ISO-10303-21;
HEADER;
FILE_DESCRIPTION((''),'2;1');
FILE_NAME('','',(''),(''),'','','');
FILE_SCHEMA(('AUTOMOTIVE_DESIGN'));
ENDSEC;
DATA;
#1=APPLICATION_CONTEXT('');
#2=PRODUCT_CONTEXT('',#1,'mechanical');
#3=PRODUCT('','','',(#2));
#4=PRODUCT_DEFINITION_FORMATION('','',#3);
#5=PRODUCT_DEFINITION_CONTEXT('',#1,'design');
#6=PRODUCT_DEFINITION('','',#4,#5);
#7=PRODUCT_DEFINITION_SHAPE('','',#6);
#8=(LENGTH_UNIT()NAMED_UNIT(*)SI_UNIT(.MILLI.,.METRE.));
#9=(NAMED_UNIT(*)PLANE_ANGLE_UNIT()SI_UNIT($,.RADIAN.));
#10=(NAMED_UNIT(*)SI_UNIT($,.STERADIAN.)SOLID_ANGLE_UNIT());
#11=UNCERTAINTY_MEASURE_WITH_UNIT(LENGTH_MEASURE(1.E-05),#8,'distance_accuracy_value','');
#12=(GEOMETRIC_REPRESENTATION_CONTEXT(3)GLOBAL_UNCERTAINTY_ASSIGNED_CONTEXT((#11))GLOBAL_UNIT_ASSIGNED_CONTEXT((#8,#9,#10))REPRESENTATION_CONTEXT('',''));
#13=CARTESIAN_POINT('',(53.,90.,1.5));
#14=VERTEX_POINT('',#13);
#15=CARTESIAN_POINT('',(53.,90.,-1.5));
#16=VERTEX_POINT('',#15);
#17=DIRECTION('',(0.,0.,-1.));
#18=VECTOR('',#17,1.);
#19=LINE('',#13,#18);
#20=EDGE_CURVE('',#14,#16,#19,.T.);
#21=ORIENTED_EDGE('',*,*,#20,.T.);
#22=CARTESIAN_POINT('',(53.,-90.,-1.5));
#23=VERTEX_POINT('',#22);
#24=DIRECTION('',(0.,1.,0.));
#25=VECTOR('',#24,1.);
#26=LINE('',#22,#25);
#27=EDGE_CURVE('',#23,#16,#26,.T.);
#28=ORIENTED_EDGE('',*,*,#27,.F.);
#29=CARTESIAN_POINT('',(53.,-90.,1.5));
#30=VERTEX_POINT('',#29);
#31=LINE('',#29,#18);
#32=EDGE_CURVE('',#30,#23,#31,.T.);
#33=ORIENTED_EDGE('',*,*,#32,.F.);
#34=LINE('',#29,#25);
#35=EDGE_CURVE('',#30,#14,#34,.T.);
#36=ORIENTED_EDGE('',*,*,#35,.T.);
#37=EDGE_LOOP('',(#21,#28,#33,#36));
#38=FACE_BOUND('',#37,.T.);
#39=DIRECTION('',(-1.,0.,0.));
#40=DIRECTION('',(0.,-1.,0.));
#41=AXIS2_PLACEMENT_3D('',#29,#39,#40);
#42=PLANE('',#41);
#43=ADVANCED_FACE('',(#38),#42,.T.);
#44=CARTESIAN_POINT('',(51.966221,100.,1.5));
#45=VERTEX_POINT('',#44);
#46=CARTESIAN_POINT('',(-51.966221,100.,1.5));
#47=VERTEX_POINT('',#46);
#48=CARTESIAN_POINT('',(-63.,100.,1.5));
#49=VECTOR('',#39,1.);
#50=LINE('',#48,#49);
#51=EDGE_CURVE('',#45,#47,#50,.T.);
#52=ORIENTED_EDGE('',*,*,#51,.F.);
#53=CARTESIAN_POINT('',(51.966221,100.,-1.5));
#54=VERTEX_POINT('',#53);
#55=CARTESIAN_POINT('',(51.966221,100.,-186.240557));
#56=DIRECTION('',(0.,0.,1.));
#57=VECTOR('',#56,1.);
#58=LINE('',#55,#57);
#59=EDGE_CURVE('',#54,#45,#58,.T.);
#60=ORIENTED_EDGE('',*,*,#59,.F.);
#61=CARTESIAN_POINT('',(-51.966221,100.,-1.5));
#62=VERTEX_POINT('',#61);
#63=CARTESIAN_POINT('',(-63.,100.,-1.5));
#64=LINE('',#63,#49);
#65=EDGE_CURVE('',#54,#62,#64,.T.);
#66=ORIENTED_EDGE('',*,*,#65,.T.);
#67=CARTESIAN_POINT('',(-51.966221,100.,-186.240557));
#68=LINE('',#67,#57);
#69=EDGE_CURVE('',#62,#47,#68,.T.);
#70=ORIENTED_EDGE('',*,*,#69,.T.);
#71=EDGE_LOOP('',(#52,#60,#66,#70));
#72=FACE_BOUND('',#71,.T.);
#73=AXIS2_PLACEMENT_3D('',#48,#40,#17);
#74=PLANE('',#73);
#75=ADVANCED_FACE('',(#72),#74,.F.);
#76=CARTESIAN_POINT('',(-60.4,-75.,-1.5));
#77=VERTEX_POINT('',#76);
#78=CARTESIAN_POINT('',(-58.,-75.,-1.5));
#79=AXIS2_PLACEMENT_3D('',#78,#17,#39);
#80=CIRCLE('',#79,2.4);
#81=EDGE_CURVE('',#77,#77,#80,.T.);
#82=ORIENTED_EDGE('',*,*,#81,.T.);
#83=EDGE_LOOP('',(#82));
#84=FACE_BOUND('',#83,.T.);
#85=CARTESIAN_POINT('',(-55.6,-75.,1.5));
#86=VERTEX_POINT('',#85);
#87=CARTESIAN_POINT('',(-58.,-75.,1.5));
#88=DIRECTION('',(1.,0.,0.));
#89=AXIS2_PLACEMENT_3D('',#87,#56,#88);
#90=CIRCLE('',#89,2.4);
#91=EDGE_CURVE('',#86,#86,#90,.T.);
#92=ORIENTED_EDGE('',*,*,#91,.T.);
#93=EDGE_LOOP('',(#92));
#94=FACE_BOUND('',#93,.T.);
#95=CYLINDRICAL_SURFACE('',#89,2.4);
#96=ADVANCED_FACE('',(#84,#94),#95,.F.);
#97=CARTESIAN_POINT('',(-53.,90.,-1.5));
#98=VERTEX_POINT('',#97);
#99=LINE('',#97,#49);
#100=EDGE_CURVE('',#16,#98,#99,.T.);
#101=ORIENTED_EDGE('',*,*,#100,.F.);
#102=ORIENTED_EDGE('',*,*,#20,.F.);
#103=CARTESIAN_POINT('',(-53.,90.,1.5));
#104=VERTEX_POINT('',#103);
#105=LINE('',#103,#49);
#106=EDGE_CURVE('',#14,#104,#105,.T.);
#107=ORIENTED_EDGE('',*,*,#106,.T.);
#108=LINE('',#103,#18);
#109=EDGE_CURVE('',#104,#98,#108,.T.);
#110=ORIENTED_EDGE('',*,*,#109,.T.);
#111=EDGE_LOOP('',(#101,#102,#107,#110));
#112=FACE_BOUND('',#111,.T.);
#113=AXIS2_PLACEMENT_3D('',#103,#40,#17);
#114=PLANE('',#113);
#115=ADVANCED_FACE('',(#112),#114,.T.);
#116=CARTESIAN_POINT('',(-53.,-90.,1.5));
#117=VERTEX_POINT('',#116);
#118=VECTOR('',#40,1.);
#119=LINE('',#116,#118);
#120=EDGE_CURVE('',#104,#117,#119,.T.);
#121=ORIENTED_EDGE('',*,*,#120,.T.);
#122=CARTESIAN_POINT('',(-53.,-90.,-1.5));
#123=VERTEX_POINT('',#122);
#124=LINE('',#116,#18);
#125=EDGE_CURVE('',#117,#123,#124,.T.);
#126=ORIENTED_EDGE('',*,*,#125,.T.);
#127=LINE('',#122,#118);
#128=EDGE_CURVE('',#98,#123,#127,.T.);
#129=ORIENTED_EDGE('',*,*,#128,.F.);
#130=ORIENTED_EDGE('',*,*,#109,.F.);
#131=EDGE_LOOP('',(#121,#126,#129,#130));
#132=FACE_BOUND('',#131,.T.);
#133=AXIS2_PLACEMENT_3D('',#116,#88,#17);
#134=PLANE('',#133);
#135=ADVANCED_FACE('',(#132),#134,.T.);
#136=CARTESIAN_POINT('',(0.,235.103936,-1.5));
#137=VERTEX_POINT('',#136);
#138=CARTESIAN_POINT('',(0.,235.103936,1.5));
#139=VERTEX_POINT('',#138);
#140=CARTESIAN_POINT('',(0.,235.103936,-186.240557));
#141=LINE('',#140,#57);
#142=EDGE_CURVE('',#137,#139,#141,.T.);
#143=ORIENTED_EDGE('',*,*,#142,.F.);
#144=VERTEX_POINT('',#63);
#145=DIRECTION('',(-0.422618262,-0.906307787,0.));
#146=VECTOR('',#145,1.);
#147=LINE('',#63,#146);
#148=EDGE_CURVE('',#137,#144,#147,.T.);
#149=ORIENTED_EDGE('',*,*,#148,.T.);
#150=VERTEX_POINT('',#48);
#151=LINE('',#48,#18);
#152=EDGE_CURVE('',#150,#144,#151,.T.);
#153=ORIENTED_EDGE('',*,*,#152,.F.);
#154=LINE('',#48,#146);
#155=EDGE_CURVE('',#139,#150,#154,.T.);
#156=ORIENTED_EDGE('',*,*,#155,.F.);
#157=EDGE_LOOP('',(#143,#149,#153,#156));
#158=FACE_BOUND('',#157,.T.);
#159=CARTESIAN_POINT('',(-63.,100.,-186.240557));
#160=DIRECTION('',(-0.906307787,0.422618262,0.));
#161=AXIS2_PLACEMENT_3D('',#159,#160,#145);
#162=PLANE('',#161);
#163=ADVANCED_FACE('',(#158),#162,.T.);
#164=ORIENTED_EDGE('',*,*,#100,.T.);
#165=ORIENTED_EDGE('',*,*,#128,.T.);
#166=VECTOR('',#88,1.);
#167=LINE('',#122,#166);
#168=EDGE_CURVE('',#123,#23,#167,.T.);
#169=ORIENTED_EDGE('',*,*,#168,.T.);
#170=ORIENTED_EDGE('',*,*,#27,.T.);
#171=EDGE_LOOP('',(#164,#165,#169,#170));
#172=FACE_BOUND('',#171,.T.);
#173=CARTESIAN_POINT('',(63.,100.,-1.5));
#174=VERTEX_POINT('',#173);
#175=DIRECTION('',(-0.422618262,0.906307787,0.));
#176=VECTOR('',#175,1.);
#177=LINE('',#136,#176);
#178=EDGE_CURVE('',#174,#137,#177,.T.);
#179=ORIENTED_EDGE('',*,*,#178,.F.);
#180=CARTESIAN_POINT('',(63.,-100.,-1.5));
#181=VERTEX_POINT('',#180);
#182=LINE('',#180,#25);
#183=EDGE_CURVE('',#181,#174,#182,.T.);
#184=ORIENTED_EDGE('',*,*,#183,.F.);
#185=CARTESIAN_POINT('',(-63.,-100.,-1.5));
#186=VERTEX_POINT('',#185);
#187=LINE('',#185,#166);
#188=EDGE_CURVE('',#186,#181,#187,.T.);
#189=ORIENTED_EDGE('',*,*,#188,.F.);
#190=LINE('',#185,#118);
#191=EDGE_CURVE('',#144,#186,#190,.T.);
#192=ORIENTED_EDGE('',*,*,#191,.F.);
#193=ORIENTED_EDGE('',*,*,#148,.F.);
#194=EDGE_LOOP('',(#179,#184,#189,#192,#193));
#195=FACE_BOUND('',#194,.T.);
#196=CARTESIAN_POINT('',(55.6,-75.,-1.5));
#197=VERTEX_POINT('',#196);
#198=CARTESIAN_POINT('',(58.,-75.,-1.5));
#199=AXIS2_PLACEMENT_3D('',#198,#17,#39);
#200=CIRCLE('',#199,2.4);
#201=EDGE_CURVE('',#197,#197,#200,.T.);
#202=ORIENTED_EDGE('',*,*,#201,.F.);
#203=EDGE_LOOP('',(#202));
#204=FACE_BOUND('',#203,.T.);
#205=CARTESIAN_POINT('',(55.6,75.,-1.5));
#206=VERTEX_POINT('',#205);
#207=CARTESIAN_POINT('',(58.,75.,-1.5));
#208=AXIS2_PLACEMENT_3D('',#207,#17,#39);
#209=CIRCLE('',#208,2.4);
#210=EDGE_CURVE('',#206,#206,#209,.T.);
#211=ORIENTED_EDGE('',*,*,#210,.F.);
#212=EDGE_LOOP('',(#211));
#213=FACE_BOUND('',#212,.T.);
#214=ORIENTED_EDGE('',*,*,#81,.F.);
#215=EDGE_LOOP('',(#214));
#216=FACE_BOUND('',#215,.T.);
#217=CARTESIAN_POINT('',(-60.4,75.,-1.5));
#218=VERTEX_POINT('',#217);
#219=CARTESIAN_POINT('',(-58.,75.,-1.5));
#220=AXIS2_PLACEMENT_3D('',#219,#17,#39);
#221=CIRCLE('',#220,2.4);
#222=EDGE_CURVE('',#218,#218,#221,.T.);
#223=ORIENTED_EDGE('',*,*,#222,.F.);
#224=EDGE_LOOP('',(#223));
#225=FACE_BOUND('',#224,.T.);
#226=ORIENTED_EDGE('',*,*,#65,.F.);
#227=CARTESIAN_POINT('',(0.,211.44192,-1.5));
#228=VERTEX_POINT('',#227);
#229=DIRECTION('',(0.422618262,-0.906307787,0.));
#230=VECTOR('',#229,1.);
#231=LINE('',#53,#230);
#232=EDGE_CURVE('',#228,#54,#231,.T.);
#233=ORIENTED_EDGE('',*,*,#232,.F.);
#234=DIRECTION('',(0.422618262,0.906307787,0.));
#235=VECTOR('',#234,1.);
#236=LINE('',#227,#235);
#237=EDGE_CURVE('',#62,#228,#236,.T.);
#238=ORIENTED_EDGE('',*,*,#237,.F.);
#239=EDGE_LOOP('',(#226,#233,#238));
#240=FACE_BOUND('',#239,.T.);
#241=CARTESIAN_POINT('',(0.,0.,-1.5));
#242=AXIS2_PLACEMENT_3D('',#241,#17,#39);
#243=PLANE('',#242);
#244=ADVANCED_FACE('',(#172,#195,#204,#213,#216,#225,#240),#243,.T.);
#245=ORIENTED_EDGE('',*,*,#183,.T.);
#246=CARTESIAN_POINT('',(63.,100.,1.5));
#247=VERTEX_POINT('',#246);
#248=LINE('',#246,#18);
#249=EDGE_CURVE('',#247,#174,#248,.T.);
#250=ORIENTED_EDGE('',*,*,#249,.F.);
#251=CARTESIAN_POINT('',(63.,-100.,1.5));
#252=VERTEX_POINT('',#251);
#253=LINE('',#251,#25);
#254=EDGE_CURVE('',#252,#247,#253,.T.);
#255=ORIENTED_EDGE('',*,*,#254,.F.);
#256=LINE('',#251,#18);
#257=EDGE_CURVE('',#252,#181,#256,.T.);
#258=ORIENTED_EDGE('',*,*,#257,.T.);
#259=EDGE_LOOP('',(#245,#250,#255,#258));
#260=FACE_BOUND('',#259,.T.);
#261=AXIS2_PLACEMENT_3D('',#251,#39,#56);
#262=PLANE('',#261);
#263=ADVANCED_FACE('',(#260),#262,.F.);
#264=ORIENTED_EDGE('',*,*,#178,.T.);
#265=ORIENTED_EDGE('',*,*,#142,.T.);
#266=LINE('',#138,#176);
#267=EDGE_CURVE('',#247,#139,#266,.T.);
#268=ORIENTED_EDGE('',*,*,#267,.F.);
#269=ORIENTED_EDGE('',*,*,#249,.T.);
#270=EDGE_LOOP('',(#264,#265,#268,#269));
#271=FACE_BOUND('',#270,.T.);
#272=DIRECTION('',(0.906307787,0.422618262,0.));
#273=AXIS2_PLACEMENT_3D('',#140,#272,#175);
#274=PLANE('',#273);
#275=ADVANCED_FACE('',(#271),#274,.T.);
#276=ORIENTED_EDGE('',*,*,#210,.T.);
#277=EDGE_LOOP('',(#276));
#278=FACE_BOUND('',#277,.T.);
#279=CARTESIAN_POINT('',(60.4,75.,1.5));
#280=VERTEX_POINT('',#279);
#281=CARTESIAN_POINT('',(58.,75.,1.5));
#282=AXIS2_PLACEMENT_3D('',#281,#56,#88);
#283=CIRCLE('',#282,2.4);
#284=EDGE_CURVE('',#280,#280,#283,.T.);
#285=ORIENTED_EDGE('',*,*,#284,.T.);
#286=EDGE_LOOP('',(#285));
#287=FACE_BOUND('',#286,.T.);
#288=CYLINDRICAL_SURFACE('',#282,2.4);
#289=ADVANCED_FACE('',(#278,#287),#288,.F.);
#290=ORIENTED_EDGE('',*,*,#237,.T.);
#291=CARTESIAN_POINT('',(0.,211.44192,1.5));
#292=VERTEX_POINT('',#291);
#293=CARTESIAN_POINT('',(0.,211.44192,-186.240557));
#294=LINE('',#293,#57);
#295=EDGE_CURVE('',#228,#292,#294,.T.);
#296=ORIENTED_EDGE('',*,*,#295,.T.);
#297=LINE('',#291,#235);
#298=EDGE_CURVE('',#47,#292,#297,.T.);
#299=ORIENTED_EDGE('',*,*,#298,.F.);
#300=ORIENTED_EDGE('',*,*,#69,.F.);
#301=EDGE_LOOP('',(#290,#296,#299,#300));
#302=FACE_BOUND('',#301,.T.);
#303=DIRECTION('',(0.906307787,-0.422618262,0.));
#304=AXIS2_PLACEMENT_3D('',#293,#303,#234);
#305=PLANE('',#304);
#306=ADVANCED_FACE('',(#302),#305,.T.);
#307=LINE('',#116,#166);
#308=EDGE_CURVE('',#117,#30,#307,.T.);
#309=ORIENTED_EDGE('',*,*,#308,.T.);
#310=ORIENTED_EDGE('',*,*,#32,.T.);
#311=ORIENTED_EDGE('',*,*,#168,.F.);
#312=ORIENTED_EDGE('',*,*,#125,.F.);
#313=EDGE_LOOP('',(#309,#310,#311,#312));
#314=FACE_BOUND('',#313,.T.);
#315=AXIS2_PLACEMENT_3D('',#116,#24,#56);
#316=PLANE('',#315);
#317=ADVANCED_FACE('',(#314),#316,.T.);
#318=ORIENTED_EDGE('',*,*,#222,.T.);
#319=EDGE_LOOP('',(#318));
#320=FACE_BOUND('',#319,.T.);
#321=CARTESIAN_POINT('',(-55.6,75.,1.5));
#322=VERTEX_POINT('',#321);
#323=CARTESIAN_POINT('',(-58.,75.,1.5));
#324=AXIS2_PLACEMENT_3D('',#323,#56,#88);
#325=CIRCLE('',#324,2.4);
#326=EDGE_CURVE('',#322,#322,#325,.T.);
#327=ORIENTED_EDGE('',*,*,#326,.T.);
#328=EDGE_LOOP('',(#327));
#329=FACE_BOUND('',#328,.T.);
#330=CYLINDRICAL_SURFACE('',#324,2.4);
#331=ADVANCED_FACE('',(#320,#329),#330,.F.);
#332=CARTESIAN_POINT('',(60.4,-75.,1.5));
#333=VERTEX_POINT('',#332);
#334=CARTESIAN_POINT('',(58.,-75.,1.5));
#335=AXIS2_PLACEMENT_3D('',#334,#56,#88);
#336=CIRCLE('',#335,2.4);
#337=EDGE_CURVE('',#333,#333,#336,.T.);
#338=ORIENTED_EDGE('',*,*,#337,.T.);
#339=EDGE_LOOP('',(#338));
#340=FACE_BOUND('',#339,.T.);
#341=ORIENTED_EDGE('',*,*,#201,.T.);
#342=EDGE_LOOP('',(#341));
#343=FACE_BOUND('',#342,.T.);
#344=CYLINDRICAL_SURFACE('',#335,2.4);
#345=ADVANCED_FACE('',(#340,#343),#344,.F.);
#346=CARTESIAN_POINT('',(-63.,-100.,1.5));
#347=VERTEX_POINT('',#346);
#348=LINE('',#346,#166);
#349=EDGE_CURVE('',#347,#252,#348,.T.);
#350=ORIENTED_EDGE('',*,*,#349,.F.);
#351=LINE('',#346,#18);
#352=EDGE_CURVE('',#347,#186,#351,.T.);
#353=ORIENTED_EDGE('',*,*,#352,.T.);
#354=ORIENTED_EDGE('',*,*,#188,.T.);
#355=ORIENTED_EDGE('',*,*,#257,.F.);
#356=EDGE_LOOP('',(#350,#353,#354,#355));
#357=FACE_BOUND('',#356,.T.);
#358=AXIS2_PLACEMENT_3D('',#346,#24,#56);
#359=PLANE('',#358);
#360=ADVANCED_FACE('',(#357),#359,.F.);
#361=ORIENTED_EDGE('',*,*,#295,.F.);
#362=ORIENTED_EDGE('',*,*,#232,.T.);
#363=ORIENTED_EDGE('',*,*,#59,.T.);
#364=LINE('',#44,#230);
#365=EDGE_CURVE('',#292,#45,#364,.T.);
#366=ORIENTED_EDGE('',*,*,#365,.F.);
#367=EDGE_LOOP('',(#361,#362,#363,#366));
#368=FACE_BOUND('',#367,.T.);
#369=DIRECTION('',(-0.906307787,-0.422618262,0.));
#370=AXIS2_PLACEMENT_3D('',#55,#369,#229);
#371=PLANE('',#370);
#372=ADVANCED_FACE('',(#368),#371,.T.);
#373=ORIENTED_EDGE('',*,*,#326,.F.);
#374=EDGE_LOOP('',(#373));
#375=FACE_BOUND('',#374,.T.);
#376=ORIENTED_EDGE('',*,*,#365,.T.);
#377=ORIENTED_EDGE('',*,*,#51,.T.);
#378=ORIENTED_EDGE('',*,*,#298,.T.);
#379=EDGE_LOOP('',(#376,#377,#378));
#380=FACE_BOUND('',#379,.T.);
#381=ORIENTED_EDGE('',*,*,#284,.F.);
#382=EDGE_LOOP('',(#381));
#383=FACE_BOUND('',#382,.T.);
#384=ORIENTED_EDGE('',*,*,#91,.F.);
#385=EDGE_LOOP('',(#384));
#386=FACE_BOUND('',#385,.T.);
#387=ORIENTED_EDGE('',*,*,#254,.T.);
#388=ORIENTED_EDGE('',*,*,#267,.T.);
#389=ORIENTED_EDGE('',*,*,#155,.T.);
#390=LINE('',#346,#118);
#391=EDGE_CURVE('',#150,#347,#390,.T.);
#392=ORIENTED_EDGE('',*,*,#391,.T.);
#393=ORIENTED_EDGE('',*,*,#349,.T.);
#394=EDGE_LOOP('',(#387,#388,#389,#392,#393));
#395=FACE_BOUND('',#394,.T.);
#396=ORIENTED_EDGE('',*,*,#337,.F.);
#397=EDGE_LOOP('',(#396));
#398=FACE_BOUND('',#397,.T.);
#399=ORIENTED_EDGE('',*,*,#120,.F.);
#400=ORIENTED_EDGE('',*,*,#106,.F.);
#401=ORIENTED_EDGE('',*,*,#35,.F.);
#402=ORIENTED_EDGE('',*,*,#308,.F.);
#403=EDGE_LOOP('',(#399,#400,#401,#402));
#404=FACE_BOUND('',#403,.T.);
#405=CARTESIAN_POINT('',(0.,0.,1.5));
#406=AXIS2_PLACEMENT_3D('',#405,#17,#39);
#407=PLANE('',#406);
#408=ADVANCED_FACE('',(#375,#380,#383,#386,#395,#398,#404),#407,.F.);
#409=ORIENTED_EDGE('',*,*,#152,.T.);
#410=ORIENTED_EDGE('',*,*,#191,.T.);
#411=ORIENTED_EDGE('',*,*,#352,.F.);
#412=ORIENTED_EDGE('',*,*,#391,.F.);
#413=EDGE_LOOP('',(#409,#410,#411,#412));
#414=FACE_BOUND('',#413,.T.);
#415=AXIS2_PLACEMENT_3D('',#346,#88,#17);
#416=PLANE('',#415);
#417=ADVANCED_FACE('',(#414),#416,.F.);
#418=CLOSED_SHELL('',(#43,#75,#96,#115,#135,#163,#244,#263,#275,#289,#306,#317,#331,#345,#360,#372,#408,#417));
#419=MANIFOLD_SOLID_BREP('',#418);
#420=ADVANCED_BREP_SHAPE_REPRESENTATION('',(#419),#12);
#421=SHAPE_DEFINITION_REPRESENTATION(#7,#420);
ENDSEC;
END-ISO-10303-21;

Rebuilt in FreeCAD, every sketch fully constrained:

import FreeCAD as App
import Part
import Sketcher
Q = App.Units.Quantity


def add_polygon(sketch, points):
    """Adds a closed chain of lines whose ends are joined by coincident constraints."""
    first, n = sketch.GeometryCount, len(points)
    for a, b in zip(points, points[1:] + points[:1]):
        sketch.addGeometry(Part.LineSegment(App.Vector(*a, 0), App.Vector(*b, 0)), False)
    for i in range(n):
        sketch.addConstraint(Sketcher.Constraint("Coincident", first + i, 2, first + (i + 1) % n, 1))

doc = App.newDocument("Part")
body = doc.addObject("PartDesign::Body", "Body")

# Sketch on XY plane
sketch1 = body.newObject("Sketcher::SketchObject", "Sketch")
sketch1.AttachmentSupport = (doc.getObject("XY_Plane"), [""])
sketch1.MapMode = "FlatFace"
add_polygon(sketch1, [(-63, 100), (-63, -100), (63, -100), (63, 100)])  # lines 0-3
add_polygon(sketch1, [(53, -90), (-53, -90), (-53, 90), (53, 90)])  # lines 4-7
sketch1.addConstraint([
    Sketcher.Constraint("Vertical", 0),
    Sketcher.Constraint("Horizontal", 1),
    Sketcher.Constraint("Vertical", 2),
    Sketcher.Constraint("Horizontal", 3),
    Sketcher.Constraint("Horizontal", 4),
    Sketcher.Constraint("Vertical", 5),
    Sketcher.Constraint("Horizontal", 6),
    Sketcher.Constraint("Vertical", 7),
    Sketcher.Constraint("Symmetric", 0, 2, 2, 2, -1, 1),
    Sketcher.Constraint("Symmetric", 4, 2, 6, 2, -1, 1),
    Sketcher.Constraint("DistanceX", 1, 1, 1, 2, 126.0),
    Sketcher.Constraint("DistanceX", 4, 2, 4, 1, 106.0),
    Sketcher.Constraint("DistanceY", 0, 2, 0, 1, 200.0),
    Sketcher.Constraint("DistanceY", 5, 1, 5, 2, 180.0),
])
pad1 = body.newObject("PartDesign::Pad", "Pad")
pad1.Profile = sketch1
pad1.Length = 3
pad1.Midplane = True

# Sketch on XY plane
sketch2 = body.newObject("Sketcher::SketchObject", "Sketch001")
sketch2.AttachmentSupport = (doc.getObject("XY_Plane"), [""])
sketch2.MapMode = "FlatFace"
sketch2.AttachmentOffset = App.Placement(App.Vector(0, 0, 1.5), App.Rotation())
add_polygon(sketch2, [(0, 235), (-63, 100), (-52, 100), (0, 211), (52, 100), (63, 100)])  # lines 0-5
sketch2.addConstraint([
    Sketcher.Constraint("Horizontal", 1),
    Sketcher.Constraint("Horizontal", 4),
    Sketcher.Constraint("Symmetric", 1, 2, 3, 2, -2),
    Sketcher.Constraint("PointOnObject", 2, 2, -2),
    Sketcher.Constraint("PointOnObject", 5, 2, -2),
    Sketcher.Constraint("Parallel", 0, 2),
    Sketcher.Constraint("Parallel", 3, 5),
    Sketcher.Constraint("Angle", 0, Q("-115 deg")),
    Sketcher.Constraint("DistanceX", 0, 2, -1, 1, 63.0),
    Sketcher.Constraint("DistanceY", -1, 1, 0, 2, 100.0),
    Sketcher.Constraint("DistanceX", 1, 1, 1, 2, 11.033779),
])
pad2 = body.newObject("PartDesign::Pad", "Pad001")
pad2.Profile = sketch2
pad2.Length = 3
pad2.Reversed = True

# Sketch on XY plane
sketch3 = body.newObject("Sketcher::SketchObject", "Sketch002")
sketch3.AttachmentSupport = (doc.getObject("XY_Plane"), [""])
sketch3.MapMode = "FlatFace"
sketch3.AttachmentOffset = App.Placement(App.Vector(0, 0, 1.5), App.Rotation())
sketch3.addGeometry(Part.Circle(App.Vector(-58, 75, 0), App.Vector(0, 0, 1), 2.4), False)
sketch3.addConstraint([
    Sketcher.Constraint("Diameter", 0, 4.8),
    Sketcher.Constraint("DistanceX", 0, 3, -1, 1, 58.0),
    Sketcher.Constraint("DistanceY", -1, 1, 0, 3, 75.0),
])
doc.recompute()
hole = body.newObject("PartDesign::Hole", "Hole")
hole.Profile = sketch3
hole.ThreadType = "None"
hole.Diameter = 4.8
hole.DepthType = "ThroughAll"
doc.recompute()

mirrored = body.newObject("PartDesign::Mirrored", "Mirrored")
mirrored.Originals = [hole]
mirrored.MirrorPlane = (doc.getObject("XZ_Plane"), [""])
body.Tip = mirrored
doc.recompute()

mirrored2 = body.newObject("PartDesign::Mirrored", "Mirrored001")
mirrored2.Originals = [hole]
mirrored2.MirrorPlane = (doc.getObject("YZ_Plane"), [""])
body.Tip = mirrored2

# Sketch on XY plane
sketch4 = body.newObject("Sketcher::SketchObject", "Sketch003")
sketch4.AttachmentSupport = (doc.getObject("XY_Plane"), [""])
sketch4.MapMode = "FlatFace"
sketch4.AttachmentOffset = App.Placement(App.Vector(0, 0, 1.5), App.Rotation())
sketch4.addGeometry(Part.Circle(App.Vector(58, -75, 0), App.Vector(0, 0, 1), 2.4), False)
sketch4.addConstraint([
    Sketcher.Constraint("Diameter", 0, 4.8),
    Sketcher.Constraint("DistanceX", -1, 1, 0, 3, 58.0),
    Sketcher.Constraint("DistanceY", 0, 3, -1, 1, 75.0),
])
doc.recompute()
hole2 = body.newObject("PartDesign::Hole", "Hole001")
hole2.Profile = sketch4
hole2.ThreadType = "None"
hole2.Diameter = 4.8
hole2.DepthType = "ThroughAll"

doc.recompute()
